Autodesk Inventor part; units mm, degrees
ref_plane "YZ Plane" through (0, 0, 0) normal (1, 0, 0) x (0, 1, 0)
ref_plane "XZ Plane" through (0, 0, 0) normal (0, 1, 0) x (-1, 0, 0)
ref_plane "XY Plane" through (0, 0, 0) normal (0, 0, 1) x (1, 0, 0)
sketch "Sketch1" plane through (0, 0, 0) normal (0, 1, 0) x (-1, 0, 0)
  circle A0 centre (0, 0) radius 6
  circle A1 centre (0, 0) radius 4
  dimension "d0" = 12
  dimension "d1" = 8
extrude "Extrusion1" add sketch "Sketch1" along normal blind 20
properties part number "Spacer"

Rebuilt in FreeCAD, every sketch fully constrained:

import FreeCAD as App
import Part
import Sketcher
Q = App.Units.Quantity

doc = App.newDocument("Part")
body = doc.addObject("PartDesign::Body", "Body")

# Sketch on XZ plane
sketch1 = body.newObject("Sketcher::SketchObject", "Sketch")
sketch1.AttachmentSupport = (doc.getObject("XZ_Plane"), [""])
sketch1.MapMode = "FlatFace"
sketch1.addGeometry(Part.Circle(App.Vector(0, 0, 0), App.Vector(0, 0, 1), 6), False)
sketch1.addGeometry(Part.Circle(App.Vector(0, 0, 0), App.Vector(0, 0, 1), 4), False)
sketch1.addConstraint(Sketcher.Constraint("Coincident", 0, 3, -1, 1))
sketch1.addConstraint(Sketcher.Constraint("Coincident", 1, 3, -1, 1))
sketch1.addConstraint(Sketcher.Constraint("Diameter", 0, Q("12 mm")))
sketch1.addConstraint(Sketcher.Constraint("Diameter", 1, Q("8 mm")))
pad1 = body.newObject("PartDesign::Pad", "Pad")
pad1.Profile = sketch1
pad1.Length = 20
pad1.Reversed = True

doc.recompute()
